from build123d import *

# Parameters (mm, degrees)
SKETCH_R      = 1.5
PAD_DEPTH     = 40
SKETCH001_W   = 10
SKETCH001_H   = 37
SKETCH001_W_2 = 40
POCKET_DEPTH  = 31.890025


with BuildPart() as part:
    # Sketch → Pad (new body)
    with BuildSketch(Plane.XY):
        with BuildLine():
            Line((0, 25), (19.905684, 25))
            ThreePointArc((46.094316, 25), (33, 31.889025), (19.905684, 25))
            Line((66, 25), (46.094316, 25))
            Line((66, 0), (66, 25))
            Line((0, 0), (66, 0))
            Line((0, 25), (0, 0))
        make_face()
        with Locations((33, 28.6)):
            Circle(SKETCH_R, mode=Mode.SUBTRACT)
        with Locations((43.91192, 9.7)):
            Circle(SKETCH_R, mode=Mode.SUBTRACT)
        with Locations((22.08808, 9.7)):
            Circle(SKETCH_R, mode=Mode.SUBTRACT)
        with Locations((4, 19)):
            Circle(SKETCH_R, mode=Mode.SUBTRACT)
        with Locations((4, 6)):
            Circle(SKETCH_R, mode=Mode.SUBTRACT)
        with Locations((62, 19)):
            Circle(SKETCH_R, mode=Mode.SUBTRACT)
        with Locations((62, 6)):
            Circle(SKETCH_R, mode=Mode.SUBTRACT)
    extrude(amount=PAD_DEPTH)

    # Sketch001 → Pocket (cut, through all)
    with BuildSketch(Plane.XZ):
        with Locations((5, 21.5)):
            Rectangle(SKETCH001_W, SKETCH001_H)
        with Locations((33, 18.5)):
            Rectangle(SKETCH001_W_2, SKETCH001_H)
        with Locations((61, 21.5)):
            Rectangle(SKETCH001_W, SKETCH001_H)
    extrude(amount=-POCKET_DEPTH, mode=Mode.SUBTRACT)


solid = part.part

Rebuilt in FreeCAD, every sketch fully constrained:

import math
import FreeCAD as App
import Part
import Sketcher

V = App.Vector

doc = App.newDocument("Part")
body = doc.addObject("PartDesign::Body", "Body")

# Sketch on XY plane
sketch1 = body.newObject("Sketcher::SketchObject", "Sketch")
sketch1.AttachmentSupport = (doc.getObject("XY_Plane"), [""])
sketch1.MapMode = "FlatFace"
sketch1.addGeometry(Part.LineSegment(V(19.9, 25, 0), V(0, 25, 0)), False)
sketch1.addGeometry(Part.LineSegment(V(0, 25, 0), V(0, 0, 0)), False)
sketch1.addGeometry(Part.LineSegment(V(0, 0, 0), V(66, 0, 0)), False)
sketch1.addGeometry(Part.LineSegment(V(66, 0, 0), V(66, 25, 0)), False)
sketch1.addGeometry(Part.LineSegment(V(66, 25, 0), V(46.1, 25, 0)), False)
sketch1.addGeometry(Part.ArcOfCircle(Part.Circle(V(33, 16, 0), V(0, 0, 1), 15.9), math.radians(35), math.radians(145)), False)
sketch1.addGeometry(Part.Circle(V(62, 6, 0), V(0, 0, 1), 1.5), False)
sketch1.addGeometry(Part.Circle(V(43.9, 9.7, 0), V(0, 0, 1), 1.5), False)
sketch1.addGeometry(Part.Circle(V(22.1, 9.7, 0), V(0, 0, 1), 1.5), False)
sketch1.addGeometry(Part.Circle(V(4, 6, 0), V(0, 0, 1), 1.5), False)
sketch1.addGeometry(Part.Circle(V(62, 19, 0), V(0, 0, 1), 1.5), False)
sketch1.addGeometry(Part.Circle(V(4, 19, 0), V(0, 0, 1), 1.5), False)
sketch1.addGeometry(Part.Circle(V(33, 28.6, 0), V(0, 0, 1), 1.5), False)
sketch1.addConstraint(Sketcher.Constraint("Coincident", 0, 2, 1, 1))
sketch1.addConstraint(Sketcher.Constraint("Coincident", 1, 2, 2, 1))
sketch1.addConstraint(Sketcher.Constraint("Coincident", 2, 2, 3, 1))
sketch1.addConstraint(Sketcher.Constraint("Coincident", 3, 2, 4, 1))
sketch1.addConstraint(Sketcher.Constraint("Coincident", 4, 2, 5, 1))
sketch1.addConstraint(Sketcher.Constraint("Coincident", 5, 2, 0, 1))
sketch1.addConstraint(Sketcher.Constraint("Horizontal", 0))
sketch1.addConstraint(Sketcher.Constraint("Vertical", 1))
sketch1.addConstraint(Sketcher.Constraint("Horizontal", 2))
sketch1.addConstraint(Sketcher.Constraint("Vertical", 3))
sketch1.addConstraint(Sketcher.Constraint("Horizontal", 4))
sketch1.addConstraint(Sketcher.Constraint("Coincident", 1, 2, -1, 1))
sketch1.addConstraint(Sketcher.Constraint("Equal", 6, 7))
sketch1.addConstraint(Sketcher.Constraint("Equal", 7, 8))
sketch1.addConstraint(Sketcher.Constraint("Equal", 8, 9))
sketch1.addConstraint(Sketcher.Constraint("Equal", 9, 10))
sketch1.addConstraint(Sketcher.Constraint("Equal", 10, 11))
sketch1.addConstraint(Sketcher.Constraint("Equal", 11, 12))
sketch1.addConstraint(Sketcher.Constraint("Horizontal", 7, 3, 8, 3))
sketch1.addConstraint(Sketcher.Constraint("Horizontal", 6, 3, 9, 3))
sketch1.addConstraint(Sketcher.Constraint("Horizontal", 10, 3, 11, 3))
sketch1.addConstraint(Sketcher.Constraint("Horizontal", 0, 2, 3, 2))
sketch1.addConstraint(Sketcher.Constraint("Vertical", 6, 3, 10, 3))
sketch1.addConstraint(Sketcher.Constraint("Vertical", 9, 3, 11, 3))
sketch1.addConstraint(Sketcher.Constraint("Vertical", 5, 3, 12, 3))
sketch1.addConstraint(Sketcher.Constraint("Equal", 0, 4))
sketch1.addConstraint(Sketcher.Constraint("Diameter", 6, 3.0))
sketch1.addConstraint(Sketcher.Constraint("DistanceX", 2, 1, 2, 2, 66.0))
sketch1.addConstraint(Sketcher.Constraint("DistanceY", 1, 2, 1, 1, 25.0))
sketch1.addConstraint(Sketcher.Constraint("DistanceY", -1, 1, 5, 3, 16.0))
sketch1.addConstraint(Sketcher.Constraint("DistanceX", -1, 1, 6, 3, 62.0))
sketch1.addConstraint(Sketcher.Constraint("DistanceY", -1, 1, 6, 3, 6.0))
sketch1.addConstraint(Sketcher.Constraint("DistanceX", -1, 1, 9, 3, 4.0))
sketch1.addConstraint(Sketcher.Constraint("DistanceY", -1, 1, 10, 3, 19.0))
sketch1.addConstraint(Sketcher.Constraint("DistanceY", -1, 1, 7, 3, 9.7))
sketch1.addConstraint(Sketcher.Constraint("DistanceY", -1, 1, 12, 3, 28.6))
sketch1.addConstraint(Sketcher.Constraint("Radius", 5, 15.889025))
sketch1.addConstraint(Sketcher.Constraint("DistanceX", -1, 1, 7, 3, 43.91192))
sketch1.addConstraint(Sketcher.Constraint("DistanceX", -1, 1, 8, 3, 22.08808))
pad1 = body.newObject("PartDesign::Pad", "Pad")
pad1.Profile = sketch1
pad1.Length = 40

# Sketch on XZ plane
sketch2 = body.newObject("Sketcher::SketchObject", "Sketch001")
sketch2.AttachmentSupport = (doc.getObject("XZ_Plane"), [""])
sketch2.MapMode = "FlatFace"
sketch2.addGeometry(Part.LineSegment(V(0, 40, 0), V(0, 3, 0)), False)
sketch2.addGeometry(Part.LineSegment(V(0, 3, 0), V(10, 3, 0)), False)
sketch2.addGeometry(Part.LineSegment(V(10, 3, 0), V(10, 40, 0)), False)
sketch2.addGeometry(Part.LineSegment(V(10, 40, 0), V(0, 40, 0)), False)
sketch2.addGeometry(Part.LineSegment(V(13, 37, 0), V(13, 0, 0)), False)
sketch2.addGeometry(Part.LineSegment(V(13, 0, 0), V(53, 0, 0)), False)
sketch2.addGeometry(Part.LineSegment(V(53, 0, 0), V(53, 37, 0)), False)
sketch2.addGeometry(Part.LineSegment(V(53, 37, 0), V(13, 37, 0)), False)
sketch2.addGeometry(Part.LineSegment(V(56, 40, 0), V(56, 3, 0)), False)
sketch2.addGeometry(Part.LineSegment(V(56, 3, 0), V(66, 3, 0)), False)
sketch2.addGeometry(Part.LineSegment(V(66, 3, 0), V(66, 40, 0)), False)
sketch2.addGeometry(Part.LineSegment(V(66, 40, 0), V(56, 40, 0)), False)
sketch2.addConstraint(Sketcher.Constraint("Coincident", 0, 2, 1, 1))
sketch2.addConstraint(Sketcher.Constraint("Coincident", 1, 2, 2, 1))
sketch2.addConstraint(Sketcher.Constraint("Coincident", 2, 2, 3, 1))
sketch2.addConstraint(Sketcher.Constraint("Coincident", 3, 2, 0, 1))
sketch2.addConstraint(Sketcher.Constraint("Coincident", 4, 2, 5, 1))
sketch2.addConstraint(Sketcher.Constraint("Coincident", 5, 2, 6, 1))
sketch2.addConstraint(Sketcher.Constraint("Coincident", 6, 2, 7, 1))
sketch2.addConstraint(Sketcher.Constraint("Coincident", 7, 2, 4, 1))
sketch2.addConstraint(Sketcher.Constraint("Coincident", 8, 2, 9, 1))
sketch2.addConstraint(Sketcher.Constraint("Coincident", 9, 2, 10, 1))
sketch2.addConstraint(Sketcher.Constraint("Coincident", 10, 2, 11, 1))
sketch2.addConstraint(Sketcher.Constraint("Coincident", 11, 2, 8, 1))
sketch2.addConstraint(Sketcher.Constraint("Vertical", 0))
sketch2.addConstraint(Sketcher.Constraint("Horizontal", 1))
sketch2.addConstraint(Sketcher.Constraint("Vertical", 2))
sketch2.addConstraint(Sketcher.Constraint("Horizontal", 3))
sketch2.addConstraint(Sketcher.Constraint("Vertical", 4))
sketch2.addConstraint(Sketcher.Constraint("Horizontal", 5))
sketch2.addConstraint(Sketcher.Constraint("Vertical", 6))
sketch2.addConstraint(Sketcher.Constraint("Horizontal", 7))
sketch2.addConstraint(Sketcher.Constraint("Vertical", 8))
sketch2.addConstraint(Sketcher.Constraint("Horizontal", 9))
sketch2.addConstraint(Sketcher.Constraint("Vertical", 10))
sketch2.addConstraint(Sketcher.Constraint("Horizontal", 11))
sketch2.addConstraint(Sketcher.Constraint("PointOnObject", 0, 2, -2))
sketch2.addConstraint(Sketcher.Constraint("PointOnObject", 4, 2, -1))
sketch2.addConstraint(Sketcher.Constraint("Horizontal", 1, 2, 8, 2))
sketch2.addConstraint(Sketcher.Constraint("Horizontal", 3, 2, 10, 2))
sketch2.addConstraint(Sketcher.Constraint("Equal", 3, 9))
sketch2.addConstraint(Sketcher.Constraint("Equal", 2, 4))
sketch2.addConstraint(Sketcher.Constraint("DistanceX", 1, 1, 1, 2, 10.0))
sketch2.addConstraint(Sketcher.Constraint("DistanceX", 5, 1, 5, 2, 40.0))
sketch2.addConstraint(Sketcher.Constraint("DistanceY", 0, 2, 0, 1, 37.0))
sketch2.addConstraint(Sketcher.Constraint("DistanceY", -1, 1, 0, 2, 3.0))
sketch2.addConstraint(Sketcher.Constraint("DistanceX", -1, 1, 4, 2, 13.0))
sketch2.addConstraint(Sketcher.Constraint("DistanceX", -1, 1, 8, 2, 56.0))
pocket1 = body.newObject("PartDesign::Pocket", "Pocket")
pocket1.Profile = sketch2
pocket1.Type = "ThroughAll"

doc.recompute()
